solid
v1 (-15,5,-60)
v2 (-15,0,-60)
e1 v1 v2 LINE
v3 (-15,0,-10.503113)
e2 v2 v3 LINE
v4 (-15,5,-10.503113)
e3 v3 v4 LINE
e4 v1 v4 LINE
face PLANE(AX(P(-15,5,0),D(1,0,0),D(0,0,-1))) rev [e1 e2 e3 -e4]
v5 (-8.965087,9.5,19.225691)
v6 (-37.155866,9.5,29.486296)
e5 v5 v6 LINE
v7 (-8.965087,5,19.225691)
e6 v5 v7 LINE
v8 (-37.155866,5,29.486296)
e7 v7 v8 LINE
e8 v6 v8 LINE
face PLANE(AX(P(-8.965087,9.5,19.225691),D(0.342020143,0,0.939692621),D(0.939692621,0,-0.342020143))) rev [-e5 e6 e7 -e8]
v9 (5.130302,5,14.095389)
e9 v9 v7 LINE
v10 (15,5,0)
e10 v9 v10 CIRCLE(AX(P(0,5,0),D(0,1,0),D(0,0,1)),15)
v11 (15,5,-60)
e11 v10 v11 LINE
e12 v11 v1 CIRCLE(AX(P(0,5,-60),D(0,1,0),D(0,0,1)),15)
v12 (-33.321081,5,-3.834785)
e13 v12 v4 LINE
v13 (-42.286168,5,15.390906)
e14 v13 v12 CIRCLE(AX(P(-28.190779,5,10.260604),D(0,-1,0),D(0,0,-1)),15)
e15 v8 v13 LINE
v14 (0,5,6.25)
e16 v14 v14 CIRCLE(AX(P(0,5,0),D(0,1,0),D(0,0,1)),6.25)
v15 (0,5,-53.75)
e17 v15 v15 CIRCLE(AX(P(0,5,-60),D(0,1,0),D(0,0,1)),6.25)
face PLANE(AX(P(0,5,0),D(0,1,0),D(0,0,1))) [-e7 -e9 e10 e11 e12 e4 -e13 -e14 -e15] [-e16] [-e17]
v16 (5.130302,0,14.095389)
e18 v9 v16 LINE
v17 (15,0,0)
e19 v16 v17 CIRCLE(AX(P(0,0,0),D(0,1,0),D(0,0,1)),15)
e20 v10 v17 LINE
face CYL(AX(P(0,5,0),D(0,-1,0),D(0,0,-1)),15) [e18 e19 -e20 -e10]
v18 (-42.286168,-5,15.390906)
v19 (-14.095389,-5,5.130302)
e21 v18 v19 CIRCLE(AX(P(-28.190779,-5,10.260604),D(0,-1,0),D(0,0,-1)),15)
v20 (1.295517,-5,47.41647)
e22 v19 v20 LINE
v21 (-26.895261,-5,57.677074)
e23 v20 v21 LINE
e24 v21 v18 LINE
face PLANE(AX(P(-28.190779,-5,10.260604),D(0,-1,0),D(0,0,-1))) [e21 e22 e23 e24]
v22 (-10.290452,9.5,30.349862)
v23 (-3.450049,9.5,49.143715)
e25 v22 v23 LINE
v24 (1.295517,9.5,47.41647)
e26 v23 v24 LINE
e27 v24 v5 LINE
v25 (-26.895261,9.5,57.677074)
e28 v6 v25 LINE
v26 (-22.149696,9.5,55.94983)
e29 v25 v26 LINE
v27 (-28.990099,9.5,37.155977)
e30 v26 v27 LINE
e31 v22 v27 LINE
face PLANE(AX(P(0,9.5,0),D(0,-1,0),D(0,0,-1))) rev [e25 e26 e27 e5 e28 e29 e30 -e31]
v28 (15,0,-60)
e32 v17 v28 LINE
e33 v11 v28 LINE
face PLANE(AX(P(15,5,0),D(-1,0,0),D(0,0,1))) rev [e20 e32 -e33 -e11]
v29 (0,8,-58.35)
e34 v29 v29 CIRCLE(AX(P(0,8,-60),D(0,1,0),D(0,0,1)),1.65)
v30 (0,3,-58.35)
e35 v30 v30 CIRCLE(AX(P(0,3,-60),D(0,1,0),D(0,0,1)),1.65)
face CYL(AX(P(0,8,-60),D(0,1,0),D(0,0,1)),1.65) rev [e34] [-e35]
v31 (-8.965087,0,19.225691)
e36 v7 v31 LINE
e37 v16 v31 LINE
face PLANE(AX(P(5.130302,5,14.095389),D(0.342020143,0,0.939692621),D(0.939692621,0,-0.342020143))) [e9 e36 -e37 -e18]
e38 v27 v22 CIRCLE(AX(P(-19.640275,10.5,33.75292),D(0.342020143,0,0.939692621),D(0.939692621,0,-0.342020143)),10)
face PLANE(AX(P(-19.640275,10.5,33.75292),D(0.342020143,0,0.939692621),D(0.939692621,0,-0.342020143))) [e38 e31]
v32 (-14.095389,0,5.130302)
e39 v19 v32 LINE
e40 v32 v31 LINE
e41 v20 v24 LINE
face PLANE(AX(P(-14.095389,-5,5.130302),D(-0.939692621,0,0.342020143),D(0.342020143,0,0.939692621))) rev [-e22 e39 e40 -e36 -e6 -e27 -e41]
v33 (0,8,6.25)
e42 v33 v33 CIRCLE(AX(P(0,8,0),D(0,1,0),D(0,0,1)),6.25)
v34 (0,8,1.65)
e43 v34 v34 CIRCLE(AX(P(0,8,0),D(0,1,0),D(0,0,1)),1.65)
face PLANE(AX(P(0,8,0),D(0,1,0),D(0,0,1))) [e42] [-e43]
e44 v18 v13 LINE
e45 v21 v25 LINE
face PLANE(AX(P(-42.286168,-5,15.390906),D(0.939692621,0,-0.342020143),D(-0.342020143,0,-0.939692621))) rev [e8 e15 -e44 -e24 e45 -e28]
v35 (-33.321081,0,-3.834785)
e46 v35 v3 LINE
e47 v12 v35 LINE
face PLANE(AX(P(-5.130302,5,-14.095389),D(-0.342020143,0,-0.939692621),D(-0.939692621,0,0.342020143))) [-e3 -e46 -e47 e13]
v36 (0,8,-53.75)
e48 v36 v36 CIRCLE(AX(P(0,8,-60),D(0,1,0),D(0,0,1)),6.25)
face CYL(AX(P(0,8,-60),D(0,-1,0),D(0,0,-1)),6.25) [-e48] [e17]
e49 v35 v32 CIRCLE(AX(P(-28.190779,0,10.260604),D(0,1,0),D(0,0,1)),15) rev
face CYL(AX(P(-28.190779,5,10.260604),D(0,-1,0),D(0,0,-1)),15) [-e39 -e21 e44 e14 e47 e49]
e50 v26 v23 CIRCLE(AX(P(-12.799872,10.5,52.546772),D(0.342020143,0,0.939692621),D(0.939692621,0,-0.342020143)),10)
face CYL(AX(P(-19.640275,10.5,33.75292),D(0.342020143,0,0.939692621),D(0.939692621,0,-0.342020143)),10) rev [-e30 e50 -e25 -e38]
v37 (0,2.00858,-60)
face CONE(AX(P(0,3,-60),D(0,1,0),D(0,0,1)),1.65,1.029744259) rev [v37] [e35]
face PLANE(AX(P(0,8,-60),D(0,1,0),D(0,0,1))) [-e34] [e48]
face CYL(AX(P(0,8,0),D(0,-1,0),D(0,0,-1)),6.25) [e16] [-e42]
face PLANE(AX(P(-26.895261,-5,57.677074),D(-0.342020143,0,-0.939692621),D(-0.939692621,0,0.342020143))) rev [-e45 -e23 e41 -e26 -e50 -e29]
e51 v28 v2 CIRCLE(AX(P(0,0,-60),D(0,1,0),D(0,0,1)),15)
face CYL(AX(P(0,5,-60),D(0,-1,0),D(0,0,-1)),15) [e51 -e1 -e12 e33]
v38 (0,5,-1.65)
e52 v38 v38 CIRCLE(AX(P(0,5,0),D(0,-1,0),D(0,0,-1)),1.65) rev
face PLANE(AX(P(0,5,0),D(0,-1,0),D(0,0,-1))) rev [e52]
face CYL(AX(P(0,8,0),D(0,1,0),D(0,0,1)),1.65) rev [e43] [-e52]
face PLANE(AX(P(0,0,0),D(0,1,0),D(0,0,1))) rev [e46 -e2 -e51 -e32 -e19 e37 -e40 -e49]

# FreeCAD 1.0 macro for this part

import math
import FreeCAD as App
import Part
import Sketcher
Q = App.Units.Quantity

doc = App.newDocument("Part")
body = doc.addObject("PartDesign::Body", "Body")

sketch1 = body.newObject("Sketcher::SketchObject", "Sketch")
sketch1.AttachmentSupport = (doc.getObject("XZ_Plane"), [""])
sketch1.MapMode = "FlatFace"
sketch1.addGeometry(Part.LineSegment(App.Vector(-15, -60, 0), App.Vector(-15, 0, 0)), False)
sketch1.addGeometry(Part.ArcOfCircle(Part.Circle(App.Vector(0, 0, 0), App.Vector(0, 0, 1), 15), math.radians(0), math.radians(180)), False)
sketch1.addGeometry(Part.LineSegment(App.Vector(15, 0, 0), App.Vector(15, -60, 0)), False)
sketch1.addGeometry(Part.ArcOfCircle(Part.Circle(App.Vector(0, -60, 0), App.Vector(0, 0, 1), 15), math.radians(180), math.radians(360)), False)
sketch1.addConstraint(Sketcher.Constraint("Tangent", 0, 2, 1, 2))
sketch1.addConstraint(Sketcher.Constraint("Tangent", 1, 1, 2, 1))
sketch1.addConstraint(Sketcher.Constraint("Tangent", 2, 2, 3, 2))
sketch1.addConstraint(Sketcher.Constraint("Tangent", 3, 1, 0, 1))
sketch1.addConstraint(Sketcher.Constraint("Vertical", 0))
sketch1.addConstraint(Sketcher.Constraint("Vertical", 2))
sketch1.addConstraint(Sketcher.Constraint("Coincident", 1, 3, -1, 1))
sketch1.addConstraint(Sketcher.Constraint("Radius", 1, Q("15 mm")))
sketch1.addConstraint(Sketcher.Constraint("DistanceY", 0, 1, 0, 2, Q("60 mm")))
pad1 = body.newObject("PartDesign::Pad", "Pad")
pad1.Profile = sketch1
pad1.Length = 5
pad1.Reversed = True

sketch2 = body.newObject("Sketcher::SketchObject", "Sketch001")
sketch2.AttachmentSupport = (doc.getObject("XZ_Plane"), [""])
sketch2.MapMode = "FlatFace"
sketch2.AttachmentOffset = App.Placement(App.Vector(0, 0, -5), App.Rotation())
sketch2.addGeometry(Part.Circle(App.Vector(0, -60, 0), App.Vector(0, 0, 1), 6), False)
sketch2.addGeometry(Part.Circle(App.Vector(0, 0, 0), App.Vector(0, 0, 1), 6), False)
sketch2.addConstraint(Sketcher.Constraint("Coincident", 1, 3, -1, 1))
sketch2.addConstraint(Sketcher.Constraint("Equal", 0, 1))
sketch2.addConstraint(Sketcher.Constraint("PointOnObject", 0, 3, -2))
sketch2.addConstraint(Sketcher.Constraint("Diameter", 0, Q("12.5 mm")))
sketch2.addConstraint(Sketcher.Constraint("DistanceY", 0, 3, -1, 1, Q("60 mm")))
pad2 = body.newObject("PartDesign::Pad", "Pad001")
pad2.Profile = sketch2
pad2.Length = 3
pad2.Reversed = True

sketch3 = body.newObject("Sketcher::SketchObject", "Sketch002")
sketch3.AttachmentSupport = (doc.getObject("XZ_Plane"), [""])
sketch3.MapMode = "FlatFace"
sketch3.AttachmentOffset = App.Placement(App.Vector(0, 0, -8), App.Rotation())
sketch3.addGeometry(Part.Circle(App.Vector(0, 0, 0), App.Vector(0, 0, 1), 1.6), False)
sketch3.addGeometry(Part.Circle(App.Vector(0, -60, 0), App.Vector(0, 0, 1), 1.6), False)
sketch3.addConstraint(Sketcher.Constraint("Coincident", 0, 3, -1, 1))
sketch3.addConstraint(Sketcher.Constraint("Equal", 0, 1))
sketch3.addConstraint(Sketcher.Constraint("PointOnObject", 1, 3, -2))
sketch3.addConstraint(Sketcher.Constraint("Diameter", 0, Q("3.3 mm")))
sketch3.addConstraint(Sketcher.Constraint("DistanceY", 1, 3, -1, 1, Q("60 mm")))
doc.recompute()
hole = body.newObject("PartDesign::Hole", "Hole")
hole.Profile = sketch3
hole.ThreadType = "None"
hole.Diameter = 3.3
hole.DepthType = "Dimension"
hole.Depth = 5
hole.DrillPoint = "Angled"
hole.DrillPointAngle = 118
hole.Reversed = True

sketch4 = body.newObject("Sketcher::SketchObject", "Sketch003")
sketch4.AttachmentSupport = (doc.getObject("XZ_Plane"), [""])
sketch4.MapMode = "FlatFace"
sketch4.addGeometry(Part.LineSegment(App.Vector(-33, -4, 0), App.Vector(-5, -14, 0)), False)
sketch4.addGeometry(Part.ArcOfCircle(Part.Circle(App.Vector(0, 0, 0), App.Vector(0, 0, 1), 15), math.radians(-110), math.radians(70)), False)
sketch4.addGeometry(Part.LineSegment(App.Vector(5, 14, 0), App.Vector(-23, 24, 0)), False)
sketch4.addGeometry(Part.ArcOfCircle(Part.Circle(App.Vector(-28, 10, 0), App.Vector(0, 0, 1), 15), math.radians(70), math.radians(250)), False)
sketch4.addConstraint(Sketcher.Constraint("Tangent", 0, 2, 1, 1))
sketch4.addConstraint(Sketcher.Constraint("Tangent", 1, 2, 2, 1))
sketch4.addConstraint(Sketcher.Constraint("Tangent", 2, 2, 3, 1))
sketch4.addConstraint(Sketcher.Constraint("Tangent", 3, 2, 0, 1))
sketch4.addConstraint(Sketcher.Constraint("Coincident", 1, 3, -1, 1))
sketch4.addConstraint(Sketcher.Constraint("Equal", 1, 3))
sketch4.addConstraint(Sketcher.Constraint("Radius", 1, Q("15 mm")))
sketch4.addConstraint(Sketcher.Constraint("Angle", 0, Q("-20 deg")))
sketch4.addConstraint(Sketcher.Constraint("Distance", 0, Q("30 mm")))
pad3 = body.newObject("PartDesign::Pad", "Pad002")
pad3.Profile = sketch4
pad3.Length = 5
pad3.Reversed = True

sketch5 = body.newObject("Sketcher::SketchObject", "Sketch004")
sketch5.AttachmentSupport = (doc.getObject("XZ_Plane"), [""])
sketch5.MapMode = "FlatFace"
sketch5.addGeometry(Part.LineSegment(App.Vector(-27, 58, 0), App.Vector(-42, 15, 0)), False)
sketch5.addGeometry(Part.ArcOfCircle(Part.Circle(App.Vector(-28, 10, 0), App.Vector(0, 0, 1), 15), math.radians(160), math.radians(340)), False)
sketch5.addGeometry(Part.LineSegment(App.Vector(-14, 5, 0), App.Vector(1, 47, 0)), False)
sketch5.addGeometry(Part.LineSegment(App.Vector(1, 47, 0), App.Vector(-27, 58, 0)), False)
sketch5.addConstraint(Sketcher.Constraint("Tangent", 0, 2, 1, 1))
sketch5.addConstraint(Sketcher.Constraint("Tangent", 1, 2, 2, 1))
sketch5.addConstraint(Sketcher.Constraint("Coincident", 2, 2, 3, 1))
sketch5.addConstraint(Sketcher.Constraint("Coincident", 3, 2, 0, 1))
sketch5.addConstraint(Sketcher.Constraint("Parallel", 0, 2))
sketch5.addConstraint(Sketcher.Constraint("Perpendicular", 2, 3))
sketch5.addConstraint(Sketcher.Constraint("Radius", 1, Q("15 mm")))
sketch5.addConstraint(Sketcher.Constraint("Angle", 0, Q("-110 deg")))
sketch5.addConstraint(Sketcher.Constraint("Distance", 0, Q("45 mm")))
sketch5.addConstraint(Sketcher.Constraint("DistanceX", 1, 3, -1, 1, Q("28.190779 mm")))
sketch5.addConstraint(Sketcher.Constraint("DistanceY", -1, 1, 2, 2, Q("47.41647 mm")))
pad4 = body.newObject("PartDesign::Pad", "Pad003")
pad4.Profile = sketch5
pad4.Type = "TwoLengths"
pad4.Length = 5
pad4.Length2 = 5

sketch6 = body.newObject("Sketcher::SketchObject", "Sketch005")
sketch6.AttachmentSupport = (doc.getObject("XZ_Plane"), [""])
sketch6.MapMode = "FlatFace"
sketch6.AttachmentOffset = App.Placement(App.Vector(0, 0, -5), App.Rotation())
sketch6.addGeometry(Part.LineSegment(App.Vector(-37, 29, 0), App.Vector(-27, 58, 0)), False)
sketch6.addGeometry(Part.LineSegment(App.Vector(-27, 58, 0), App.Vector(1, 47, 0)), False)
sketch6.addGeometry(Part.LineSegment(App.Vector(1, 47, 0), App.Vector(-9, 19, 0)), False)
sketch6.addGeometry(Part.LineSegment(App.Vector(-9, 19, 0), App.Vector(-37, 29, 0)), False)
sketch6.addConstraint(Sketcher.Constraint("Coincident", 0, 2, 1, 1))
sketch6.addConstraint(Sketcher.Constraint("Coincident", 1, 2, 2, 1))
sketch6.addConstraint(Sketcher.Constraint("Coincident", 2, 2, 3, 1))
sketch6.addConstraint(Sketcher.Constraint("Coincident", 3, 2, 0, 1))
sketch6.addConstraint(Sketcher.Constraint("Perpendicular", 0, 1))
sketch6.addConstraint(Sketcher.Constraint("Perpendicular", 1, 2))
sketch6.addConstraint(Sketcher.Constraint("Perpendicular", 2, 3))
sketch6.addConstraint(Sketcher.Constraint("Equal", 0, 1))
sketch6.addConstraint(Sketcher.Constraint("Angle", 0, Q("70 deg")))
sketch6.addConstraint(Sketcher.Constraint("Distance", 0, Q("30 mm")))
sketch6.addConstraint(Sketcher.Constraint("DistanceX", 0, 2, -1, 1, Q("26.895261 mm")))
sketch6.addConstraint(Sketcher.Constraint("DistanceY", -1, 1, 1, 2, Q("47.41647 mm")))
pad5 = body.newObject("PartDesign::Pad", "Pad004")
pad5.Profile = sketch6
pad5.Length = 4.5
pad5.Reversed = True

sketch7 = body.newObject("Sketcher::SketchObject", "Sketch006")
sketch7.Placement = App.Placement(App.Vector(15.390906, 0, 42.286168), App.Rotation(App.Vector(0.939692621, 0, -0.342020143), App.Vector(0, 1, 0), App.Vector(0.342020143, 0, 0.939692621), "ZXY"))
sketch7.addGeometry(Part.Circle(App.Vector(-30, 11, 0), App.Vector(0, 0, 1), 10), False)
sketch7.addConstraint(Sketcher.Constraint("Diameter", 0, Q("20 mm")))
sketch7.addConstraint(Sketcher.Constraint("DistanceX", 0, 3, -1, 1, Q("30 mm")))
sketch7.addConstraint(Sketcher.Constraint("DistanceY", -1, 1, 0, 3, Q("10.5 mm")))
pocket1 = body.newObject("PartDesign::Pocket", "Pocket")
pocket1.Profile = sketch7
pocket1.Length = 20

doc.recompute()
